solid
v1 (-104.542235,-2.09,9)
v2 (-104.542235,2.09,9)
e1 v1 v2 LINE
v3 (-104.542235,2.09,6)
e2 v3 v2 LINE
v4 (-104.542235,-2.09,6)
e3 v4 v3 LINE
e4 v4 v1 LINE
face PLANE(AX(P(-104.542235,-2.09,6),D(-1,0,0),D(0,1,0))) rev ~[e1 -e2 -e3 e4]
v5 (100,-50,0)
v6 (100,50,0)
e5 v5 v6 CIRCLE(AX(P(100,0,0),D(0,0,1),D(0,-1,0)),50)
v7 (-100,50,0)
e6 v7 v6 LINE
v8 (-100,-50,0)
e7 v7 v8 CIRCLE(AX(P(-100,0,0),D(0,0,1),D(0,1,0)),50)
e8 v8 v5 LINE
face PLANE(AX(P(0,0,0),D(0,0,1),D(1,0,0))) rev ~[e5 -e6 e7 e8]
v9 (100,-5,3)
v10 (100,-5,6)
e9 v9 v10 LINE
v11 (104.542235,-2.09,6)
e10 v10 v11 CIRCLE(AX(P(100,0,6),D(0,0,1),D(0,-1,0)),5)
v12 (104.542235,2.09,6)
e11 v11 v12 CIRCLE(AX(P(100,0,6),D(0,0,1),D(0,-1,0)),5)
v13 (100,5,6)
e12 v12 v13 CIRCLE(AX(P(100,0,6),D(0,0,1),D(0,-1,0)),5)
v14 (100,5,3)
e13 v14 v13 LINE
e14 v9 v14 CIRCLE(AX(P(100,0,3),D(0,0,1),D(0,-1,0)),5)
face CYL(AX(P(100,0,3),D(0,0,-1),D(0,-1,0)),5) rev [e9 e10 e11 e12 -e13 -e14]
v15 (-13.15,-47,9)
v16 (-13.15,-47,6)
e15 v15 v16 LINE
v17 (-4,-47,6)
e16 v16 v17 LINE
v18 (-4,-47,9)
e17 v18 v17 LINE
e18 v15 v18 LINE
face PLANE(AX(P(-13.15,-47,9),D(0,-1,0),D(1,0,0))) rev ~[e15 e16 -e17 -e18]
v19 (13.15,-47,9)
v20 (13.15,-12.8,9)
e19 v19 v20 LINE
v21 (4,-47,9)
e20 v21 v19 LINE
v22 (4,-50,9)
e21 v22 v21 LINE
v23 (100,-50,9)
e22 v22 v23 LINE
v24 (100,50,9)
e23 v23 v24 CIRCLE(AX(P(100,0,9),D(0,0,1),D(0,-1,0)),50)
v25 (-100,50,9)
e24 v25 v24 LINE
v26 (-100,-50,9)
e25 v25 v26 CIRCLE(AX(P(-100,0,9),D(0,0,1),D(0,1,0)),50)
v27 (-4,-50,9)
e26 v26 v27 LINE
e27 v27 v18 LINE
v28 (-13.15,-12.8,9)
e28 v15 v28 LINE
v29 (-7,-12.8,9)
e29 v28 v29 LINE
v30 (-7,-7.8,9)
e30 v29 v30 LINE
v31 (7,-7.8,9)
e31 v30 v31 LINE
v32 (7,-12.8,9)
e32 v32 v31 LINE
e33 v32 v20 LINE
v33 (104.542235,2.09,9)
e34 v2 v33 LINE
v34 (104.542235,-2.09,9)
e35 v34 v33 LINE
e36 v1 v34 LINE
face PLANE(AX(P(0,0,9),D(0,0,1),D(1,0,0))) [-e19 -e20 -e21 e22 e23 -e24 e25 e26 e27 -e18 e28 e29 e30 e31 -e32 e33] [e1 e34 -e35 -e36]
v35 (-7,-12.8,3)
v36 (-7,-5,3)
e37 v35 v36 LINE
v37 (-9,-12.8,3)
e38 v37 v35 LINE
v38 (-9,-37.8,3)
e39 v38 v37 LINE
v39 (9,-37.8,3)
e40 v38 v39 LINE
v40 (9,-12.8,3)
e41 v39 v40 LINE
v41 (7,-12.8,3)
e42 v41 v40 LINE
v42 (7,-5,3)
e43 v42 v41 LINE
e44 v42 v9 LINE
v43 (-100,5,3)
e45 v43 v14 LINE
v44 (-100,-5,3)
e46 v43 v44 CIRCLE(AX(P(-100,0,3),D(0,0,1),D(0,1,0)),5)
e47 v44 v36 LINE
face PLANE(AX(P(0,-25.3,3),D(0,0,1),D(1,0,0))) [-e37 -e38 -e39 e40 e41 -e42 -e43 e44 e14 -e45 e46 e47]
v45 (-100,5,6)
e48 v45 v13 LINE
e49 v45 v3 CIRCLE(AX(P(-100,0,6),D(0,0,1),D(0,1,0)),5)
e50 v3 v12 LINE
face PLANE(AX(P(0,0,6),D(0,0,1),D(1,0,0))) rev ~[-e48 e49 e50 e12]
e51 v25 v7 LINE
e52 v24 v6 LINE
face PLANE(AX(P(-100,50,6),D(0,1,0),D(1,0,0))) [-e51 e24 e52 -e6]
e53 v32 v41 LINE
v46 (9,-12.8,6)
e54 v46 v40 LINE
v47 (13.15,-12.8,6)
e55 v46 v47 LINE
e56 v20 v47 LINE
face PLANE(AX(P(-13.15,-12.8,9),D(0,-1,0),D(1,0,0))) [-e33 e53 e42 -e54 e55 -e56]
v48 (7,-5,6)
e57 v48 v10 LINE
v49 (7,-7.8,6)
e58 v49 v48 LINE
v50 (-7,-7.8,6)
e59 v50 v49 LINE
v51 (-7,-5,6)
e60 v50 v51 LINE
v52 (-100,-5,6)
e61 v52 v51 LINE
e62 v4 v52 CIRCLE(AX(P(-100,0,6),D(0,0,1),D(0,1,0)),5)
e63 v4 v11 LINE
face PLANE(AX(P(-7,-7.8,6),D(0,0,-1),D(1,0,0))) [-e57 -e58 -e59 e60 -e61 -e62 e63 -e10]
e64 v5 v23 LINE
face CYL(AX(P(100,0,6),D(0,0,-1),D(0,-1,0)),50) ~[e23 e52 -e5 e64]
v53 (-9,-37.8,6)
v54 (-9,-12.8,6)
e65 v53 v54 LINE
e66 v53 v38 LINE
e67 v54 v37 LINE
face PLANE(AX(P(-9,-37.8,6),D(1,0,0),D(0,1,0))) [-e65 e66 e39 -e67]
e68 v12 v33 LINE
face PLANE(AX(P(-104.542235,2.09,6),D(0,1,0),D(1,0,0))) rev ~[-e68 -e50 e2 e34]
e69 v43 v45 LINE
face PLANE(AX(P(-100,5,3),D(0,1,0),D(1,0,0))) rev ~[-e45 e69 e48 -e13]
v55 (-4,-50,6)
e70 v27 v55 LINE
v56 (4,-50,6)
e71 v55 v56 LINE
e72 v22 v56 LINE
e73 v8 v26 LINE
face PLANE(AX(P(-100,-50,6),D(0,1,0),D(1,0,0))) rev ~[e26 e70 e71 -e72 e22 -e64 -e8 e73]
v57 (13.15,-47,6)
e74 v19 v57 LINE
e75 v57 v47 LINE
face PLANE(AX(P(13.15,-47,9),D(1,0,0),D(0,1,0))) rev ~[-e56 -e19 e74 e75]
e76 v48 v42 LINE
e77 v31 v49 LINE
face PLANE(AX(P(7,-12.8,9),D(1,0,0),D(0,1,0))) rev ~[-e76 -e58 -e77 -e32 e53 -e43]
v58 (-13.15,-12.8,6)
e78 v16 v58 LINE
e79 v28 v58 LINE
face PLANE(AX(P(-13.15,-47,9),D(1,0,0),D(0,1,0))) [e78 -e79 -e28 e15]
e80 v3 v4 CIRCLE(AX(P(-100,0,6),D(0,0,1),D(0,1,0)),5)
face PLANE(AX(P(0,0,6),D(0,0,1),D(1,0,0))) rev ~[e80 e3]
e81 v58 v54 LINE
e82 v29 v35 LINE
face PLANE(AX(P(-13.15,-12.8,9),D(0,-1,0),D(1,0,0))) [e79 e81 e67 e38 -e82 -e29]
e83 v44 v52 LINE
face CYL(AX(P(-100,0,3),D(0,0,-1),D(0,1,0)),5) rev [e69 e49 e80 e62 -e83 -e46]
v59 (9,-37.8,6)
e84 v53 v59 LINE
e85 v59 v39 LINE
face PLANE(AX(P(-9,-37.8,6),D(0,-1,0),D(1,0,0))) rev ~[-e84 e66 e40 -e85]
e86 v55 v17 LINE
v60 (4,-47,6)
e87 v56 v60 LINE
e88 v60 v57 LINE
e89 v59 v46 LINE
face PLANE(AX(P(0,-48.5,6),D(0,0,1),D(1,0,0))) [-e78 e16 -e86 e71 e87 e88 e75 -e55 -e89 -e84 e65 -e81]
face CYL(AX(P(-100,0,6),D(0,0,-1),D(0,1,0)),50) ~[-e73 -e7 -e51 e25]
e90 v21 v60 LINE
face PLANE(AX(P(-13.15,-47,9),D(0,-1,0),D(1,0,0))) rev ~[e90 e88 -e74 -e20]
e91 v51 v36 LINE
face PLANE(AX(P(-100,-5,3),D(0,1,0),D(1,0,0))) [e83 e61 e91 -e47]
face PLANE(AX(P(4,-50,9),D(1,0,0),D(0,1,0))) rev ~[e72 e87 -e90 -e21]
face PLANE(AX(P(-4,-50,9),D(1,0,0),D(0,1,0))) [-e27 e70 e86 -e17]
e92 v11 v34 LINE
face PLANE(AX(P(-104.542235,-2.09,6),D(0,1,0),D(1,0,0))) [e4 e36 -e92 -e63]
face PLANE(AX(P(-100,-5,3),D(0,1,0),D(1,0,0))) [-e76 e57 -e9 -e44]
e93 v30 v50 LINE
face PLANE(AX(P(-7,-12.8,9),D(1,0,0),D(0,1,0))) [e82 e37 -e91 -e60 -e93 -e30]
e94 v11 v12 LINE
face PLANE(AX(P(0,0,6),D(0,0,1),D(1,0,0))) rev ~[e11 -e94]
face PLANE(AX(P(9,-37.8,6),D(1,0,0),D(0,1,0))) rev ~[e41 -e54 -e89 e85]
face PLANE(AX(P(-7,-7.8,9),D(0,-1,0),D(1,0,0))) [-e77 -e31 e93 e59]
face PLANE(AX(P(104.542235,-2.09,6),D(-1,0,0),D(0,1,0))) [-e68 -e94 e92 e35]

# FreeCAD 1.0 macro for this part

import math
import FreeCAD as App
import Part
import Sketcher

doc = App.newDocument("Part")
body = doc.addObject("PartDesign::Body", "Body")

# Sketch on XY plane
sketch1 = body.newObject("Sketcher::SketchObject", "Sketch")
sketch1.AttachmentSupport = (doc.getObject("XY_Plane"), [""])
sketch1.MapMode = "FlatFace"
sketch1.addGeometry([
    Part.ArcOfCircle(Part.Circle(App.Vector(-100, 0, 0), App.Vector(0, 0, 1), 50), math.radians(90), math.radians(270)),
    Part.LineSegment(App.Vector(-100, -50, 0), App.Vector(100, -50, 0)),
    Part.ArcOfCircle(Part.Circle(App.Vector(100, 0, 0), App.Vector(0, 0, 1), 50), math.radians(-90), math.radians(90)),
    Part.LineSegment(App.Vector(100, 50, 0), App.Vector(-100, 50, 0)),
], False)
sketch1.addConstraint([
    Sketcher.Constraint("Tangent", 0, 2, 1, 1),
    Sketcher.Constraint("Tangent", 1, 2, 2, 1),
    Sketcher.Constraint("Tangent", 2, 2, 3, 1),
    Sketcher.Constraint("Tangent", 3, 2, 0, 1),
    Sketcher.Constraint("Horizontal", 1),
    Sketcher.Constraint("Horizontal", 3),
    Sketcher.Constraint("Symmetric", 0, 3, 2, 3, -1, 1),
    Sketcher.Constraint("Radius", 0, 50.0),
    Sketcher.Constraint("DistanceX", 1, 1, 1, 2, 200.0),
])
pad1 = body.newObject("PartDesign::Pad", "Pad")
pad1.Profile = sketch1
pad1.Length = 3

# Sketch on XY plane
sketch2 = body.newObject("Sketcher::SketchObject", "Sketch001")
sketch2.AttachmentSupport = (doc.getObject("XY_Plane"), [""])
sketch2.MapMode = "FlatFace"
sketch2.AttachmentOffset = App.Placement(App.Vector(0, 0, 3), App.Rotation())
sketch2.addGeometry([
    Part.ArcOfCircle(Part.Circle(App.Vector(-100, 0, 0), App.Vector(0, 0, 1), 50), math.radians(90), math.radians(270)),  # 0
    Part.LineSegment(App.Vector(-100, -50, 0), App.Vector(100, -50, 0)),  # 1
    Part.ArcOfCircle(Part.Circle(App.Vector(100, 0, 0), App.Vector(0, 0, 1), 50), math.radians(-90), math.radians(90)),  # 2
    Part.LineSegment(App.Vector(100, 50, 0), App.Vector(-100, 50, 0)),  # 3
    Part.ArcOfCircle(Part.Circle(App.Vector(-100, 0, 0), App.Vector(0, 0, 1), 5), math.radians(90), math.radians(270)),  # 4
    Part.LineSegment(App.Vector(-100, 5, 0), App.Vector(100, 5, 0)),  # 5
    Part.ArcOfCircle(Part.Circle(App.Vector(100, 0, 0), App.Vector(0, 0, 1), 5), math.radians(-90), math.radians(90)),  # 6
    Part.LineSegment(App.Vector(100, -5, 0), App.Vector(-100, -5, 0)),  # 7
], False)
sketch2.addConstraint([
    Sketcher.Constraint("Tangent", 0, 2, 1, 1),
    Sketcher.Constraint("Tangent", 1, 2, 2, 1),
    Sketcher.Constraint("Tangent", 2, 2, 3, 1),
    Sketcher.Constraint("Tangent", 3, 2, 0, 1),
    Sketcher.Constraint("Tangent", 4, 1, 5, 1),
    Sketcher.Constraint("Tangent", 5, 2, 6, 2),
    Sketcher.Constraint("Tangent", 6, 1, 7, 1),
    Sketcher.Constraint("Tangent", 7, 2, 4, 2),
    Sketcher.Constraint("Horizontal", 1),
    Sketcher.Constraint("Horizontal", 3),
    Sketcher.Constraint("Horizontal", 5),
    Sketcher.Constraint("Horizontal", 7),
    Sketcher.Constraint("Coincident", 4, 3, 0, 3),
    Sketcher.Constraint("Symmetric", 0, 3, 2, 3, -1, 1),
    Sketcher.Constraint("Vertical", 6, 3, 1, 2),
    Sketcher.Constraint("Radius", 0, 50.0),
    Sketcher.Constraint("Radius", 4, 5.0),
    Sketcher.Constraint("DistanceX", 1, 1, 1, 2, 200.0),
])
pad2 = body.newObject("PartDesign::Pad", "Pad001")
pad2.Profile = sketch2
pad2.Length = 3

# Sketch on XY plane
sketch3 = body.newObject("Sketcher::SketchObject", "Sketch002")
sketch3.AttachmentSupport = (doc.getObject("XY_Plane"), [""])
sketch3.MapMode = "FlatFace"
sketch3.AttachmentOffset = App.Placement(App.Vector(0, 0, 6), App.Rotation())
sketch3.addGeometry([
    Part.ArcOfCircle(Part.Circle(App.Vector(-100, 0, 0), App.Vector(0, 0, 1), 50), math.radians(90), math.radians(270)),  # 0
    Part.LineSegment(App.Vector(-100, -50, 0), App.Vector(100, -50, 0)),  # 1
    Part.ArcOfCircle(Part.Circle(App.Vector(100, 0, 0), App.Vector(0, 0, 1), 50), math.radians(-90), math.radians(90)),  # 2
    Part.LineSegment(App.Vector(100, 50, 0), App.Vector(-100, 50, 0)),  # 3
    Part.LineSegment(App.Vector(104.542235, -2.09, 0), App.Vector(-104.542235, -2.09, 0)),  # 4
    Part.LineSegment(App.Vector(-104.542235, -2.09, 0), App.Vector(-104.542235, 2.09, 0)),  # 5
    Part.LineSegment(App.Vector(-104.542235, 2.09, 0), App.Vector(104.542235, 2.09, 0)),  # 6
    Part.LineSegment(App.Vector(104.542235, 2.09, 0), App.Vector(104.542235, -2.09, 0)),  # 7
], False)
sketch3.addConstraint([
    Sketcher.Constraint("Tangent", 0, 2, 1, 1),
    Sketcher.Constraint("Tangent", 1, 2, 2, 1),
    Sketcher.Constraint("Tangent", 2, 2, 3, 1),
    Sketcher.Constraint("Tangent", 3, 2, 0, 1),
    Sketcher.Constraint("Coincident", 4, 2, 5, 1),
    Sketcher.Constraint("Coincident", 5, 2, 6, 1),
    Sketcher.Constraint("Coincident", 6, 2, 7, 1),
    Sketcher.Constraint("Coincident", 7, 2, 4, 1),
    Sketcher.Constraint("Horizontal", 1),
    Sketcher.Constraint("Horizontal", 3),
    Sketcher.Constraint("Horizontal", 4),
    Sketcher.Constraint("Vertical", 5),
    Sketcher.Constraint("Horizontal", 6),
    Sketcher.Constraint("Vertical", 7),
    Sketcher.Constraint("Symmetric", 0, 3, 2, 3, -1, 1),
    Sketcher.Constraint("Symmetric", 4, 2, 6, 2, -1, 1),
    Sketcher.Constraint("Radius", 0, 50.0),
    Sketcher.Constraint("DistanceX", 1, 1, 1, 2, 200.0),
    Sketcher.Constraint("DistanceY", 5, 1, 5, 2, 4.18),
    Sketcher.Constraint("DistanceX", 4, 2, 4, 1, 209.08447),
])
pad3 = body.newObject("PartDesign::Pad", "Pad002")
pad3.Profile = sketch3
pad3.Length = 3

# Sketch on XY plane
sketch4 = body.newObject("Sketcher::SketchObject", "Sketch003")
sketch4.AttachmentSupport = (doc.getObject("XY_Plane"), [""])
sketch4.MapMode = "FlatFace"
sketch4.AttachmentOffset = App.Placement(App.Vector(0, 0, 9), App.Rotation())
sketch4.addGeometry([
    Part.LineSegment(App.Vector(-13.15, -12.8, 0), App.Vector(-13.15, -47, 0)),
    Part.LineSegment(App.Vector(-13.15, -47, 0), App.Vector(13.15, -47, 0)),
    Part.LineSegment(App.Vector(13.15, -47, 0), App.Vector(13.15, -12.8, 0)),
    Part.LineSegment(App.Vector(13.15, -12.8, 0), App.Vector(-13.15, -12.8, 0)),
], False)
sketch4.addConstraint([
    Sketcher.Constraint("Coincident", 0, 2, 1, 1),
    Sketcher.Constraint("Coincident", 1, 2, 2, 1),
    Sketcher.Constraint("Coincident", 2, 2, 3, 1),
    Sketcher.Constraint("Coincident", 3, 2, 0, 1),
    Sketcher.Constraint("Vertical", 0),
    Sketcher.Constraint("Horizontal", 1),
    Sketcher.Constraint("Vertical", 2),
    Sketcher.Constraint("Horizontal", 3),
    Sketcher.Constraint("DistanceX", 1, 1, 1, 2, 26.3),
    Sketcher.Constraint("DistanceY", 0, 2, 0, 1, 34.2),
    Sketcher.Constraint("DistanceY", 0, 2, -1, 1, 47.0),
    Sketcher.Constraint("DistanceX", 0, 2, -1, 1, 13.15),
])
pocket1 = body.newObject("PartDesign::Pocket", "Pocket")
pocket1.Profile = sketch4
pocket1.Length = 3

# Sketch on XY plane
sketch5 = body.newObject("Sketcher::SketchObject", "Sketch004")
sketch5.AttachmentSupport = (doc.getObject("XY_Plane"), [""])
sketch5.MapMode = "FlatFace"
sketch5.AttachmentOffset = App.Placement(App.Vector(0, 0, 6), App.Rotation())
sketch5.addGeometry([
    Part.LineSegment(App.Vector(-9, -12.8, 0), App.Vector(-9, -37.8, 0)),
    Part.LineSegment(App.Vector(-9, -37.8, 0), App.Vector(9, -37.8, 0)),
    Part.LineSegment(App.Vector(9, -37.8, 0), App.Vector(9, -12.8, 0)),
    Part.LineSegment(App.Vector(9, -12.8, 0), App.Vector(-9, -12.8, 0)),
], False)
sketch5.addConstraint([
    Sketcher.Constraint("Coincident", 0, 2, 1, 1),
    Sketcher.Constraint("Coincident", 1, 2, 2, 1),
    Sketcher.Constraint("Coincident", 2, 2, 3, 1),
    Sketcher.Constraint("Coincident", 3, 2, 0, 1),
    Sketcher.Constraint("Vertical", 0),
    Sketcher.Constraint("Horizontal", 1),
    Sketcher.Constraint("Vertical", 2),
    Sketcher.Constraint("Horizontal", 3),
    Sketcher.Constraint("DistanceX", 1, 1, 1, 2, 18.0),
    Sketcher.Constraint("DistanceY", 0, 2, 0, 1, 25.0),
    Sketcher.Constraint("DistanceX", 0, 2, -1, 1, 9.0),
    Sketcher.Constraint("DistanceY", 0, 2, -1, 1, 37.8),
])
pocket2 = body.newObject("PartDesign::Pocket", "Pocket001")
pocket2.Profile = sketch5
pocket2.Length = 3

# Sketch on XY plane
sketch6 = body.newObject("Sketcher::SketchObject", "Sketch005")
sketch6.AttachmentSupport = (doc.getObject("XY_Plane"), [""])
sketch6.MapMode = "FlatFace"
sketch6.AttachmentOffset = App.Placement(App.Vector(0, 0, 9), App.Rotation())
sketch6.addGeometry([
    Part.LineSegment(App.Vector(-7, -7.8, 0), App.Vector(-7, -12.8, 0)),
    Part.LineSegment(App.Vector(-7, -12.8, 0), App.Vector(7, -12.8, 0)),
    Part.LineSegment(App.Vector(7, -12.8, 0), App.Vector(7, -7.8, 0)),
    Part.LineSegment(App.Vector(7, -7.8, 0), App.Vector(-7, -7.8, 0)),
], False)
sketch6.addConstraint([
    Sketcher.Constraint("Coincident", 0, 2, 1, 1),
    Sketcher.Constraint("Coincident", 1, 2, 2, 1),
    Sketcher.Constraint("Coincident", 2, 2, 3, 1),
    Sketcher.Constraint("Coincident", 3, 2, 0, 1),
    Sketcher.Constraint("Vertical", 0),
    Sketcher.Constraint("Horizontal", 1),
    Sketcher.Constraint("Vertical", 2),
    Sketcher.Constraint("Horizontal", 3),
    Sketcher.Constraint("DistanceX", 1, 1, 1, 2, 14.0),
    Sketcher.Constraint("DistanceY", 0, 2, 0, 1, 5.0),
    Sketcher.Constraint("DistanceX", 0, 2, -1, 1, 7.0),
    Sketcher.Constraint("DistanceY", 0, 2, -1, 1, 12.8),
])
pocket3 = body.newObject("PartDesign::Pocket", "Pocket002")
pocket3.Profile = sketch6
pocket3.Length = 6

# Sketch on XZ plane
sketch7 = body.newObject("Sketcher::SketchObject", "Sketch006")
sketch7.AttachmentSupport = (doc.getObject("XZ_Plane"), [""])
sketch7.MapMode = "FlatFace"
sketch7.AttachmentOffset = App.Placement(App.Vector(0, 0, 7.8), App.Rotation())
sketch7.addGeometry([
    Part.LineSegment(App.Vector(-7, 6, 0), App.Vector(-7, 3, 0)),
    Part.LineSegment(App.Vector(-7, 3, 0), App.Vector(7, 3, 0)),
    Part.LineSegment(App.Vector(7, 3, 0), App.Vector(7, 6, 0)),
    Part.LineSegment(App.Vector(7, 6, 0), App.Vector(-7, 6, 0)),
], False)
sketch7.addConstraint([
    Sketcher.Constraint("Coincident", 0, 2, 1, 1),
    Sketcher.Constraint("Coincident", 1, 2, 2, 1),
    Sketcher.Constraint("Coincident", 2, 2, 3, 1),
    Sketcher.Constraint("Coincident", 3, 2, 0, 1),
    Sketcher.Constraint("Vertical", 0),
    Sketcher.Constraint("Horizontal", 1),
    Sketcher.Constraint("Vertical", 2),
    Sketcher.Constraint("Horizontal", 3),
    Sketcher.Constraint("DistanceX", 1, 1, 1, 2, 14.0),
    Sketcher.Constraint("DistanceY", 0, 2, 0, 1, 3.0),
    Sketcher.Constraint("DistanceX", 0, 2, -1, 1, 7.0),
    Sketcher.Constraint("DistanceY", -1, 1, 0, 2, 3.0),
])
pocket4 = body.newObject("PartDesign::Pocket", "Pocket003")
pocket4.Profile = sketch7
pocket4.Length = 3

# Sketch on XY plane
sketch8 = body.newObject("Sketcher::SketchObject", "Sketch007")
sketch8.AttachmentSupport = (doc.getObject("XY_Plane"), [""])
sketch8.MapMode = "FlatFace"
sketch8.AttachmentOffset = App.Placement(App.Vector(0, 0, 9), App.Rotation())
sketch8.addGeometry([
    Part.LineSegment(App.Vector(-4, -47, 0), App.Vector(-4, -50, 0)),
    Part.LineSegment(App.Vector(-4, -50, 0), App.Vector(4, -50, 0)),
    Part.LineSegment(App.Vector(4, -50, 0), App.Vector(4, -47, 0)),
    Part.LineSegment(App.Vector(4, -47, 0), App.Vector(-4, -47, 0)),
], False)
sketch8.addConstraint([
    Sketcher.Constraint("Coincident", 0, 2, 1, 1),
    Sketcher.Constraint("Coincident", 1, 2, 2, 1),
    Sketcher.Constraint("Coincident", 2, 2, 3, 1),
    Sketcher.Constraint("Coincident", 3, 2, 0, 1),
    Sketcher.Constraint("Vertical", 0),
    Sketcher.Constraint("Horizontal", 1),
    Sketcher.Constraint("Vertical", 2),
    Sketcher.Constraint("Horizontal", 3),
    Sketcher.Constraint("DistanceX", 1, 1, 1, 2, 8.0),
    Sketcher.Constraint("DistanceY", 0, 2, 0, 1, 3.0),
    Sketcher.Constraint("DistanceX", 0, 2, -1, 1, 4.0),
    Sketcher.Constraint("DistanceY", 0, 2, -1, 1, 50.0),
])
pocket5 = body.newObject("PartDesign::Pocket", "Pocket004")
pocket5.Profile = sketch8
pocket5.Length = 3

doc.recompute()
